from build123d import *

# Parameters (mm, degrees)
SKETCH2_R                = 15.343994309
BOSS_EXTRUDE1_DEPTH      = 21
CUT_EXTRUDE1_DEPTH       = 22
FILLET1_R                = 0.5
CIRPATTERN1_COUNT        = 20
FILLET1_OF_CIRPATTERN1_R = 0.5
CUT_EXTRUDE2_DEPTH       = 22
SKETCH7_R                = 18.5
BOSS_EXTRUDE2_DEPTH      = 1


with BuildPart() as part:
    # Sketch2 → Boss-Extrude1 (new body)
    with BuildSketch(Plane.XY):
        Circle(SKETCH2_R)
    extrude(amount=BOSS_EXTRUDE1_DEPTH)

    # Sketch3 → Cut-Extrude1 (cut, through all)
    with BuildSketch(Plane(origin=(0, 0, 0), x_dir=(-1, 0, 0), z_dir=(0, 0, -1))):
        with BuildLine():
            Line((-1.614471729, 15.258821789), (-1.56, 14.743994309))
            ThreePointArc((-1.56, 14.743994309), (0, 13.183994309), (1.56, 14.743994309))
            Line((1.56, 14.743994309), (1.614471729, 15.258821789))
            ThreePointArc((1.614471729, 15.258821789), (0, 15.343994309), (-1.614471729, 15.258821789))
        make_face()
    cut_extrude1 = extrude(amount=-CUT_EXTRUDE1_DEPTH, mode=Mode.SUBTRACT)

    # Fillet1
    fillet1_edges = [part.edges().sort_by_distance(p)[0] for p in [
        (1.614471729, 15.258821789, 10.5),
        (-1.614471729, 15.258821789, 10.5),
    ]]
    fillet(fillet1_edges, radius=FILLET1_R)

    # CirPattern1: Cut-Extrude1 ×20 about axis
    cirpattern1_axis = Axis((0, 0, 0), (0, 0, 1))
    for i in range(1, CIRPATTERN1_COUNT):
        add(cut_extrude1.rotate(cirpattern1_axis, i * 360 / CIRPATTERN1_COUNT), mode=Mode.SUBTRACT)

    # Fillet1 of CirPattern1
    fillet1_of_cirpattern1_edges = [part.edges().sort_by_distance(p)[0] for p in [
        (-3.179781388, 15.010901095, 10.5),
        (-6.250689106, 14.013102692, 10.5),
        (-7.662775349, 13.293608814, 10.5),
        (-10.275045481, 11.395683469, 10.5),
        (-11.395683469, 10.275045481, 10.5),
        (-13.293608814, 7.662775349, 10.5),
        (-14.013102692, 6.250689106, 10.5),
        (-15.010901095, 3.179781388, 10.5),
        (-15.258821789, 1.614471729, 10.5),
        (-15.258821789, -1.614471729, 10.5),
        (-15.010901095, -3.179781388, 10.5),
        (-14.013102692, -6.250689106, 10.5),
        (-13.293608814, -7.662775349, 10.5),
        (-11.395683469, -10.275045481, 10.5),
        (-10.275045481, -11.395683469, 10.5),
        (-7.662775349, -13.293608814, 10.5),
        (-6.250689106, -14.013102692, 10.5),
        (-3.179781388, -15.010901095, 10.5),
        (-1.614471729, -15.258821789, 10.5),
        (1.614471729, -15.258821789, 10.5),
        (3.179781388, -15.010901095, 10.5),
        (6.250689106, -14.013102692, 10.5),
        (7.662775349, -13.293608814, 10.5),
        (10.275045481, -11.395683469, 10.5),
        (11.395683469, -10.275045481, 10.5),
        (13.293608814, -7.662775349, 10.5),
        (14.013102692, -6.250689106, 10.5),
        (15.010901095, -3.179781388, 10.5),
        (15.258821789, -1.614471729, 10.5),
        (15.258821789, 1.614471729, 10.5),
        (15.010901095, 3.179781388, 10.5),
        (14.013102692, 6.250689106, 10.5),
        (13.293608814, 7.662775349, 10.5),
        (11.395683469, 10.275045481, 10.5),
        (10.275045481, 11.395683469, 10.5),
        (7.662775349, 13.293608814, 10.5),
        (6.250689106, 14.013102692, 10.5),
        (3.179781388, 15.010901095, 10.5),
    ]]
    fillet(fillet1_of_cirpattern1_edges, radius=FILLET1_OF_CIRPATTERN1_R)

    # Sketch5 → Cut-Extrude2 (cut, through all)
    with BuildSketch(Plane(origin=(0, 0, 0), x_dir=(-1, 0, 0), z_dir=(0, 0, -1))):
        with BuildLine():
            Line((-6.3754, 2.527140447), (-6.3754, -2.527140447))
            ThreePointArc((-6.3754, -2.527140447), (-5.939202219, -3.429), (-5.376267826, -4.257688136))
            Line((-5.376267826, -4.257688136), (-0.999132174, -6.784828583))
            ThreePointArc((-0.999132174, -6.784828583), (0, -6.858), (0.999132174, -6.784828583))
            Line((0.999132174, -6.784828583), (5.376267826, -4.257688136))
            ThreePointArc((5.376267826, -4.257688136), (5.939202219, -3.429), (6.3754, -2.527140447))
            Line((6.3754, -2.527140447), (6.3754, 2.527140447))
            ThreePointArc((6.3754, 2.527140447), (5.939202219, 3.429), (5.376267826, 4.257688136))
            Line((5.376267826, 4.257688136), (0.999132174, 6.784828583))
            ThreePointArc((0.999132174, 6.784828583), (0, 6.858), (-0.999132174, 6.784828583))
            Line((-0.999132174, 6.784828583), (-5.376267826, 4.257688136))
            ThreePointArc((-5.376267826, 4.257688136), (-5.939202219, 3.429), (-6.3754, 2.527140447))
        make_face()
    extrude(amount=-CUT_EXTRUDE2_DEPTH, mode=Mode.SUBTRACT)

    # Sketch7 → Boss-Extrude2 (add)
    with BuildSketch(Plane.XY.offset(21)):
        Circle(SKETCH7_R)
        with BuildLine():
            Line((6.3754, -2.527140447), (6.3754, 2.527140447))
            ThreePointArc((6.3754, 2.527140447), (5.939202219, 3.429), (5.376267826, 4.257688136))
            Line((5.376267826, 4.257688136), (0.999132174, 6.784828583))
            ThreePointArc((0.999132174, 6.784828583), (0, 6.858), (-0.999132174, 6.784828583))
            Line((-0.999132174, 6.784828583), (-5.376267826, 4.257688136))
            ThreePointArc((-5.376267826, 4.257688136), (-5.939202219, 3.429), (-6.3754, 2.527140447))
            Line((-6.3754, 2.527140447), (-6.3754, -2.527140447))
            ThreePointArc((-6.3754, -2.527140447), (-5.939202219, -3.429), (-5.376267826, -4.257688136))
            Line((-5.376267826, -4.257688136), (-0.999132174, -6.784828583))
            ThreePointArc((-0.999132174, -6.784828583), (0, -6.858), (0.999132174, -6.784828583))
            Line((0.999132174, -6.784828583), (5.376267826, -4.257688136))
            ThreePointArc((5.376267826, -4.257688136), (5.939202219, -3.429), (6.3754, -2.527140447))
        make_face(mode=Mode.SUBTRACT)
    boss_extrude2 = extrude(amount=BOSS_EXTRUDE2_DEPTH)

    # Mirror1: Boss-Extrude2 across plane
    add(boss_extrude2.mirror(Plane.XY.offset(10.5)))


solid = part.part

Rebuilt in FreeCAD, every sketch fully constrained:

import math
import FreeCAD as App
import Part
import Sketcher
Q = App.Units.Quantity


def edges_at(feature, points):
    """Names of the edges that pass closest to the given points."""
    edges = feature.Shape.Edges
    near = lambda p: min(range(len(edges)), key=lambda i: edges[i].distToShape(Part.Vertex(*p))[0])
    return sorted({f"Edge{near(p) + 1}" for p in points})

doc = App.newDocument("Part")
params = doc.addObject("Spreadsheet::Sheet", "Params")
for row, (alias, value) in enumerate([
    ("pad1_length", "21 mm"),
    ("sketch2_radius", "1.56 mm"),
    ("fillet_radius", "0.5 mm"),
    ("fillet2_radius", "0.5 mm"),
    ("sketch4_diameter", "37 mm"),
    ("pad2_length", "1 mm"),
], start=1):
    params.set(f"A{row}", alias)
    params.set(f"B{row}", "=" + value)
    params.setAlias(f"B{row}", alias)

body = doc.addObject("PartDesign::Body", "Body")

sketch1 = body.newObject("Sketcher::SketchObject", "Sketch")
sketch1.AttachmentSupport = (doc.getObject("XY_Plane"), [""])
sketch1.MapMode = "FlatFace"
sketch1.addGeometry(Part.Circle(App.Vector(0, 0, 0), App.Vector(0, 0, 1), 15.343994), False)
sketch1.addConstraint(Sketcher.Constraint("Coincident", 0, 3, -1, 1))
sketch1.addConstraint(Sketcher.Constraint("Diameter", 0, Q("30.687989 mm")))
pad1 = body.newObject("PartDesign::Pad", "Pad")
pad1.Profile = sketch1
pad1.setExpression("Length", "Params.pad1_length")

sketch2 = body.newObject("Sketcher::SketchObject", "Sketch001")
sketch2.AttachmentSupport = (doc.getObject("XY_Plane"), [""])
sketch2.MapMode = "FlatFace"
sketch2.addGeometry(Part.LineSegment(App.Vector(1.614472, 15.258822, 0), App.Vector(1.56, 14.743994, 0)), False)
sketch2.addGeometry(Part.ArcOfCircle(Part.Circle(App.Vector(0, 14.743994, 0), App.Vector(0, 0, 1), 1.56), math.radians(180), math.radians(360)), False)
sketch2.addGeometry(Part.LineSegment(App.Vector(-1.56, 14.743994, 0), App.Vector(-1.614472, 15.258822, 0)), False)
sketch2.addGeometry(Part.ArcOfCircle(Part.Circle(App.Vector(0, 0, 0), App.Vector(0, 0, 1), 15.343994), math.radians(83.960246), math.radians(96.039754)), False)
sketch2.addConstraint(Sketcher.Constraint("Coincident", 0, 2, 1, 2))
sketch2.addConstraint(Sketcher.Constraint("Coincident", 1, 1, 2, 1))
sketch2.addConstraint(Sketcher.Constraint("Coincident", 2, 2, 3, 2))
sketch2.addConstraint(Sketcher.Constraint("Coincident", 3, 1, 0, 1))
sketch2.addConstraint(Sketcher.Constraint("Coincident", 3, 3, -1, 1))
sketch2.addConstraint(Sketcher.Constraint("Symmetric", 0, 2, 1, 1, -2))
sketch2.addConstraint(Sketcher.Constraint("Horizontal", 1, 3, 0, 2))
sketch2.addConstraint(Sketcher.Constraint("Horizontal", 2, 2, 3, 1))
sketch2.addConstraint(Sketcher.Constraint("Radius", 1, Q("1.56 mm")))
sketch2.addConstraint(Sketcher.Constraint("Radius", 3, Q("15.343994 mm")))
sketch2.addConstraint(Sketcher.Constraint("Distance", 0, Q("0.517701 mm")))
sketch2.addConstraint(Sketcher.Constraint("DistanceX", 2, 2, -1, 1, Q("1.614472 mm")))
sketch2.setExpression("Constraints[8]", "Params.sketch2_radius")
pocket1 = body.newObject("PartDesign::Pocket", "Pocket")
pocket1.Profile = sketch2
pocket1.Type = "ThroughAll"
pocket1.Reversed = True
doc.recompute()

fillet = body.newObject("PartDesign::Fillet", "Fillet")
fillet.Base = (pocket1, edges_at(pocket1, [(1.614, 15.259, 10.5), (-1.614, 15.259, 10.5)]))
fillet.setExpression("Radius", "Params.fillet_radius")
doc.recompute()

polarpattern = body.newObject("PartDesign::PolarPattern", "PolarPattern")
polarpattern.Originals = [pocket1]
polarpattern.Axis = (doc.getObject("Z_Axis"), [""])
polarpattern.Angle = 360
polarpattern.Occurrences = 20
body.Tip = polarpattern
doc.recompute()

fillet2 = body.newObject("PartDesign::Fillet", "Fillet001")
fillet2.Base = (polarpattern, edges_at(polarpattern, [
    (-3.18, 15.011, 10.5),
    (-6.251, 14.013, 10.5),
    (-7.663, 13.294, 10.5),
    (-10.275, 11.396, 10.5),
    (-11.396, 10.275, 10.5),
    (-13.294, 7.663, 10.5),
    (-14.013, 6.251, 10.5),
    (-15.011, 3.18, 10.5),
    (-15.259, 1.614, 10.5),
    (-15.259, -1.614, 10.5),
    (-15.011, -3.18, 10.5),
    (-14.013, -6.251, 10.5),
    (-13.294, -7.663, 10.5),
    (-11.396, -10.275, 10.5),
    (-10.275, -11.396, 10.5),
    (-7.663, -13.294, 10.5),
    (-6.251, -14.013, 10.5),
    (-3.18, -15.011, 10.5),
    (-1.614, -15.259, 10.5),
    (1.614, -15.259, 10.5),
    (3.18, -15.011, 10.5),
    (6.251, -14.013, 10.5),
    (7.663, -13.294, 10.5),
    (10.275, -11.396, 10.5),
    (11.396, -10.275, 10.5),
    (13.294, -7.663, 10.5),
    (14.013, -6.251, 10.5),
    (15.011, -3.18, 10.5),
    (15.259, -1.614, 10.5),
    (15.259, 1.614, 10.5),
    (15.011, 3.18, 10.5),
    (14.013, 6.251, 10.5),
    (13.294, 7.663, 10.5),
    (11.396, 10.275, 10.5),
    (10.275, 11.396, 10.5),
    (7.663, 13.294, 10.5),
    (6.251, 14.013, 10.5),
    (3.18, 15.011, 10.5),
]))
fillet2.setExpression("Radius", "Params.fillet2_radius")

sketch3 = body.newObject("Sketcher::SketchObject", "Sketch002")
sketch3.AttachmentSupport = (doc.getObject("XY_Plane"), [""])
sketch3.MapMode = "FlatFace"
sketch3.addGeometry(Part.LineSegment(App.Vector(6.3754, 2.52714, 0), App.Vector(6.3754, -2.52714, 0)), False)
sketch3.addGeometry(Part.ArcOfCircle(Part.Circle(App.Vector(0, 0, 0), App.Vector(0, 0, 1), 6.858), math.radians(-38.377154), math.radians(-21.622846)), False)
sketch3.addGeometry(Part.LineSegment(App.Vector(5.376268, -4.257688, 0), App.Vector(0.999132, -6.784829, 0)), False)
sketch3.addGeometry(Part.ArcOfCircle(Part.Circle(App.Vector(0, 0, 0), App.Vector(0, 0, 1), 6.858), math.radians(-98.377154), math.radians(-81.622846)), False)
sketch3.addGeometry(Part.LineSegment(App.Vector(-0.999132, -6.784829, 0), App.Vector(-5.376268, -4.257688, 0)), False)
sketch3.addGeometry(Part.ArcOfCircle(Part.Circle(App.Vector(0, 0, 0), App.Vector(0, 0, 1), 6.858), math.radians(-158.377154), math.radians(-141.622846)), False)
sketch3.addGeometry(Part.LineSegment(App.Vector(-6.3754, -2.52714, 0), App.Vector(-6.3754, 2.52714, 0)), False)
sketch3.addGeometry(Part.ArcOfCircle(Part.Circle(App.Vector(0, 0, 0), App.Vector(0, 0, 1), 6.858), math.radians(141.622846), math.radians(158.377154)), False)
sketch3.addGeometry(Part.LineSegment(App.Vector(-5.376268, 4.257688, 0), App.Vector(-0.999132, 6.784829, 0)), False)
sketch3.addGeometry(Part.ArcOfCircle(Part.Circle(App.Vector(0, 0, 0), App.Vector(0, 0, 1), 6.858), math.radians(81.622846), math.radians(98.377154)), False)
sketch3.addGeometry(Part.LineSegment(App.Vector(0.999132, 6.784829, 0), App.Vector(5.376268, 4.257688, 0)), False)
sketch3.addGeometry(Part.ArcOfCircle(Part.Circle(App.Vector(0, 0, 0), App.Vector(0, 0, 1), 6.858), math.radians(21.622846), math.radians(38.377154)), False)
sketch3.addConstraint(Sketcher.Constraint("Coincident", 0, 2, 1, 2))
sketch3.addConstraint(Sketcher.Constraint("Coincident", 1, 1, 2, 1))
sketch3.addConstraint(Sketcher.Constraint("Coincident", 2, 2, 3, 2))
sketch3.addConstraint(Sketcher.Constraint("Coincident", 3, 1, 4, 1))
sketch3.addConstraint(Sketcher.Constraint("Coincident", 4, 2, 5, 2))
sketch3.addConstraint(Sketcher.Constraint("Coincident", 5, 1, 6, 1))
sketch3.addConstraint(Sketcher.Constraint("Coincident", 6, 2, 7, 2))
sketch3.addConstraint(Sketcher.Constraint("Coincident", 7, 1, 8, 1))
sketch3.addConstraint(Sketcher.Constraint("Coincident", 8, 2, 9, 2))
sketch3.addConstraint(Sketcher.Constraint("Coincident", 9, 1, 10, 1))
sketch3.addConstraint(Sketcher.Constraint("Coincident", 10, 2, 11, 2))
sketch3.addConstraint(Sketcher.Constraint("Coincident", 11, 1, 0, 1))
sketch3.addConstraint(Sketcher.Constraint("Vertical", 0))
sketch3.addConstraint(Sketcher.Constraint("Vertical", 6))
sketch3.addConstraint(Sketcher.Constraint("Coincident", 1, 3, -1, 1))
sketch3.addConstraint(Sketcher.Constraint("Coincident", 3, 3, -1, 1))
sketch3.addConstraint(Sketcher.Constraint("Coincident", 5, 3, -1, 1))
sketch3.addConstraint(Sketcher.Constraint("Coincident", 7, 3, -1, 1))
sketch3.addConstraint(Sketcher.Constraint("Coincident", 9, 3, -1, 1))
sketch3.addConstraint(Sketcher.Constraint("Coincident", 11, 3, -1, 1))
sketch3.addConstraint(Sketcher.Constraint("Equal", 1, 3))
sketch3.addConstraint(Sketcher.Constraint("Equal", 3, 5))
sketch3.addConstraint(Sketcher.Constraint("Equal", 5, 7))
sketch3.addConstraint(Sketcher.Constraint("Equal", 7, 9))
sketch3.addConstraint(Sketcher.Constraint("Equal", 9, 11))
sketch3.addConstraint(Sketcher.Constraint("Parallel", 2, 8))
sketch3.addConstraint(Sketcher.Constraint("Parallel", 4, 10))
sketch3.addConstraint(Sketcher.Constraint("Horizontal", 2, 2, 3, 1))
sketch3.addConstraint(Sketcher.Constraint("Horizontal", 1, 1, 4, 2))
sketch3.addConstraint(Sketcher.Constraint("Horizontal", 0, 2, 5, 1))
sketch3.addConstraint(Sketcher.Constraint("Horizontal", 8, 2, 9, 1))
sketch3.addConstraint(Sketcher.Constraint("Vertical", 4, 2, 7, 1))
sketch3.addConstraint(Sketcher.Constraint("Angle", 2, Q("-150 deg")))
sketch3.addConstraint(Sketcher.Constraint("Radius", 1, Q("6.858 mm")))
sketch3.addConstraint(Sketcher.Constraint("DistanceY", 0, 2, 0, 1, Q("5.054281 mm")))
sketch3.addConstraint(Sketcher.Constraint("DistanceX", 3, 1, 1, 1, Q("6.3754 mm")))
pocket2 = body.newObject("PartDesign::Pocket", "Pocket001")
pocket2.Profile = sketch3
pocket2.Type = "ThroughAll"
pocket2.Reversed = True

sketch4 = body.newObject("Sketcher::SketchObject", "Sketch003")
sketch4.AttachmentSupport = (doc.getObject("XY_Plane"), [""])
sketch4.MapMode = "FlatFace"
sketch4.AttachmentOffset = App.Placement(App.Vector(0, 0, 21), App.Rotation())
sketch4.addGeometry(Part.Circle(App.Vector(0, 0, 0), App.Vector(0, 0, 1), 18.5), False)
sketch4.addGeometry(Part.LineSegment(App.Vector(6.3754, 2.52714, 0), App.Vector(6.3754, -2.52714, 0)), False)
sketch4.addGeometry(Part.ArcOfCircle(Part.Circle(App.Vector(0, 0, 0), App.Vector(0, 0, 1), 6.858), math.radians(-38.377154), math.radians(-21.622846)), False)
sketch4.addGeometry(Part.LineSegment(App.Vector(5.376268, -4.257688, 0), App.Vector(0.999132, -6.784829, 0)), False)
sketch4.addGeometry(Part.ArcOfCircle(Part.Circle(App.Vector(0, 0, 0), App.Vector(0, 0, 1), 6.858), math.radians(-98.377154), math.radians(-81.622846)), False)
sketch4.addGeometry(Part.LineSegment(App.Vector(-0.999132, -6.784829, 0), App.Vector(-5.376268, -4.257688, 0)), False)
sketch4.addGeometry(Part.ArcOfCircle(Part.Circle(App.Vector(0, 0, 0), App.Vector(0, 0, 1), 6.858), math.radians(-158.377154), math.radians(-141.622846)), False)
sketch4.addGeometry(Part.LineSegment(App.Vector(-6.3754, -2.52714, 0), App.Vector(-6.3754, 2.52714, 0)), False)
sketch4.addGeometry(Part.ArcOfCircle(Part.Circle(App.Vector(0, 0, 0), App.Vector(0, 0, 1), 6.858), math.radians(141.622846), math.radians(158.377154)), False)
sketch4.addGeometry(Part.LineSegment(App.Vector(-5.376268, 4.257688, 0), App.Vector(-0.999132, 6.784829, 0)), False)
sketch4.addGeometry(Part.ArcOfCircle(Part.Circle(App.Vector(0, 0, 0), App.Vector(0, 0, 1), 6.858), math.radians(81.622846), math.radians(98.377154)), False)
sketch4.addGeometry(Part.LineSegment(App.Vector(0.999132, 6.784829, 0), App.Vector(5.376268, 4.257688, 0)), False)
sketch4.addGeometry(Part.ArcOfCircle(Part.Circle(App.Vector(0, 0, 0), App.Vector(0, 0, 1), 6.858), math.radians(21.622846), math.radians(38.377154)), False)
sketch4.addConstraint(Sketcher.Constraint("Coincident", 1, 2, 2, 2))
sketch4.addConstraint(Sketcher.Constraint("Coincident", 2, 1, 3, 1))
sketch4.addConstraint(Sketcher.Constraint("Coincident", 3, 2, 4, 2))
sketch4.addConstraint(Sketcher.Constraint("Coincident", 4, 1, 5, 1))
sketch4.addConstraint(Sketcher.Constraint("Coincident", 5, 2, 6, 2))
sketch4.addConstraint(Sketcher.Constraint("Coincident", 6, 1, 7, 1))
sketch4.addConstraint(Sketcher.Constraint("Coincident", 7, 2, 8, 2))
sketch4.addConstraint(Sketcher.Constraint("Coincident", 8, 1, 9, 1))
sketch4.addConstraint(Sketcher.Constraint("Coincident", 9, 2, 10, 2))
sketch4.addConstraint(Sketcher.Constraint("Coincident", 10, 1, 11, 1))
sketch4.addConstraint(Sketcher.Constraint("Coincident", 11, 2, 12, 2))
sketch4.addConstraint(Sketcher.Constraint("Coincident", 12, 1, 1, 1))
sketch4.addConstraint(Sketcher.Constraint("Vertical", 1))
sketch4.addConstraint(Sketcher.Constraint("Vertical", 7))
sketch4.addConstraint(Sketcher.Constraint("Coincident", 0, 3, -1, 1))
sketch4.addConstraint(Sketcher.Constraint("Coincident", 2, 3, -1, 1))
sketch4.addConstraint(Sketcher.Constraint("Coincident", 4, 3, -1, 1))
sketch4.addConstraint(Sketcher.Constraint("Coincident", 6, 3, -1, 1))
sketch4.addConstraint(Sketcher.Constraint("Coincident", 8, 3, -1, 1))
sketch4.addConstraint(Sketcher.Constraint("Coincident", 10, 3, -1, 1))
sketch4.addConstraint(Sketcher.Constraint("Coincident", 12, 3, -1, 1))
sketch4.addConstraint(Sketcher.Constraint("Equal", 2, 4))
sketch4.addConstraint(Sketcher.Constraint("Equal", 4, 6))
sketch4.addConstraint(Sketcher.Constraint("Equal", 6, 8))
sketch4.addConstraint(Sketcher.Constraint("Equal", 8, 10))
sketch4.addConstraint(Sketcher.Constraint("Equal", 10, 12))
sketch4.addConstraint(Sketcher.Constraint("Parallel", 3, 9))
sketch4.addConstraint(Sketcher.Constraint("Parallel", 5, 11))
sketch4.addConstraint(Sketcher.Constraint("Horizontal", 3, 2, 4, 1))
sketch4.addConstraint(Sketcher.Constraint("Horizontal", 2, 1, 5, 2))
sketch4.addConstraint(Sketcher.Constraint("Horizontal", 1, 2, 6, 1))
sketch4.addConstraint(Sketcher.Constraint("Horizontal", 9, 2, 10, 1))
sketch4.addConstraint(Sketcher.Constraint("Vertical", 5, 2, 8, 1))
sketch4.addConstraint(Sketcher.Constraint("Diameter", 0, Q("37 mm")))
sketch4.addConstraint(Sketcher.Constraint("Angle", 3, Q("-150 deg")))
sketch4.addConstraint(Sketcher.Constraint("Radius", 2, Q("6.858 mm")))
sketch4.addConstraint(Sketcher.Constraint("DistanceY", 1, 2, 1, 1, Q("5.054281 mm")))
sketch4.addConstraint(Sketcher.Constraint("DistanceX", 4, 1, 2, 1, Q("6.3754 mm")))
sketch4.setExpression("Constraints[33]", "Params.sketch4_diameter")
pad2 = body.newObject("PartDesign::Pad", "Pad001")
pad2.Profile = sketch4
pad2.setExpression("Length", "Params.pad2_length")
doc.recompute()

datumplane = body.newObject("PartDesign::Plane", "DatumPlane")
datumplane.AttachmentSupport = (doc.getObject("XY_Plane"), [""])
datumplane.MapMode = "FlatFace"
datumplane.AttachmentOffset = App.Placement(App.Vector(0, 0, 10.5), App.Rotation())
mirrored = body.newObject("PartDesign::Mirrored", "Mirrored")
mirrored.Originals = [pad2]
mirrored.MirrorPlane = (datumplane, [""])
body.Tip = mirrored

doc.recompute()
